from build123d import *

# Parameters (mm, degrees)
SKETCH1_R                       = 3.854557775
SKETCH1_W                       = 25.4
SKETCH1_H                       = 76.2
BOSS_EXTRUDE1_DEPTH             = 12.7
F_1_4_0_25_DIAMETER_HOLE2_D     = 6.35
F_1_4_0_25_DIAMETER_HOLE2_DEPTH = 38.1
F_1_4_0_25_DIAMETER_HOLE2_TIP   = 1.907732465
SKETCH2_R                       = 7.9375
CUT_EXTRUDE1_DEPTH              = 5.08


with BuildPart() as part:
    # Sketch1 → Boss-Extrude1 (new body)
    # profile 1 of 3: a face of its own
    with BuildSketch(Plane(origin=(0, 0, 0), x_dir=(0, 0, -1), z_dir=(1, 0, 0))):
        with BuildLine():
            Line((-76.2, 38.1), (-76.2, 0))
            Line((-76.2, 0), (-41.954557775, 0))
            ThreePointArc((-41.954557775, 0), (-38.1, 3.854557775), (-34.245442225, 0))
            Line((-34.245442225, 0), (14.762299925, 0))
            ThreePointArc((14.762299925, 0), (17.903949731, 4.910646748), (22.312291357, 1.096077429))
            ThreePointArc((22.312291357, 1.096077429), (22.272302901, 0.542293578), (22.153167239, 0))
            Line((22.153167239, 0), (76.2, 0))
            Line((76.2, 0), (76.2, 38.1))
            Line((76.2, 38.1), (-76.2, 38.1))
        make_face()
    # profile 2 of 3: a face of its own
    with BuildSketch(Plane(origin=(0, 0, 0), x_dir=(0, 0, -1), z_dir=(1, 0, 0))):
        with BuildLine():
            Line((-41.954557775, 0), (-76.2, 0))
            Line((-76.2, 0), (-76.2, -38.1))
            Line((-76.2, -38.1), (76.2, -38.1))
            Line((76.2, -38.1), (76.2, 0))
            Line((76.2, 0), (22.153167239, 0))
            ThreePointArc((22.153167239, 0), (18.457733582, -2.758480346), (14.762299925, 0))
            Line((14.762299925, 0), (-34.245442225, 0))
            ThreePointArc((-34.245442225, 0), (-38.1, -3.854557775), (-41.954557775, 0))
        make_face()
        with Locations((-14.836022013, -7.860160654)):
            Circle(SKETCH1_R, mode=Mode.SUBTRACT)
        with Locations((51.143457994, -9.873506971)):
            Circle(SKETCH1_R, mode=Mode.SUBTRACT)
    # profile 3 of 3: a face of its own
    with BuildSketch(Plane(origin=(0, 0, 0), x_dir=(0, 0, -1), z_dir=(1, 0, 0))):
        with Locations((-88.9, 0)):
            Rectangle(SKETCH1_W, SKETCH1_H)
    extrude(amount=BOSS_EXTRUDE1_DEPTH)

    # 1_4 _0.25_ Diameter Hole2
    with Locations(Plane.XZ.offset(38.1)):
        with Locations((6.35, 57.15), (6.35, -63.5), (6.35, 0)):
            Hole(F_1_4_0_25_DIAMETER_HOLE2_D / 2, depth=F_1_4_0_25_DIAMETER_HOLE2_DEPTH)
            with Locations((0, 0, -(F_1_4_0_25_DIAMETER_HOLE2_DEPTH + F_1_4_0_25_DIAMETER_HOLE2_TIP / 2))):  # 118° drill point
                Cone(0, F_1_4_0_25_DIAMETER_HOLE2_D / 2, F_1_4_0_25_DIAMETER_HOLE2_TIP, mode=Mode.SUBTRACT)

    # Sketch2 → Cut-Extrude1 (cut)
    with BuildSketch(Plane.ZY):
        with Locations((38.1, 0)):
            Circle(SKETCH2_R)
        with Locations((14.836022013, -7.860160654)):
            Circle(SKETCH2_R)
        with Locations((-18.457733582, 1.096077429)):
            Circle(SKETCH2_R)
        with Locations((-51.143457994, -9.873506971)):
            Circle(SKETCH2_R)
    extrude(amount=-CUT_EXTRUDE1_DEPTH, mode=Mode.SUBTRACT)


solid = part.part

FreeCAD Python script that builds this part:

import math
import FreeCAD as App
import Part
import Sketcher

V = App.Vector
Q = App.Units.Quantity

doc = App.newDocument("Part")
body = doc.addObject("PartDesign::Body", "Body")

# Sketch on YZ plane
sketch1 = body.newObject("Sketcher::SketchObject", "Sketch")
sketch1.AttachmentSupport = (doc.getObject("YZ_Plane"), [""])
sketch1.MapMode = "FlatFace"
sketch1.addGeometry([
    Part.LineSegment(V(38.1, -76.2, 0), V(38.1, 101.6, 0)),  # 0
    Part.LineSegment(V(38.1, 101.6, 0), V(-38.1, 101.6, 0)),  # 1
    Part.LineSegment(V(-38.1, 101.6, 0), V(-38.1, -76.2, 0)),  # 2
    Part.LineSegment(V(-38.1, -76.2, 0), V(38.1, -76.2, 0)),  # 3
    Part.Circle(V(0, 38.1, 0), V(0, 0, 1), 3.9),  # 4
    Part.ArcOfCircle(Part.Circle(V(1.1, -18.5, 0), V(0, 0, 1), 3.9), math.radians(-90), math.radians(107)),  # 5
    Part.ArcOfCircle(Part.Circle(V(1.1, -18.5, 0), V(0, 0, 1), 3.9), math.radians(-106.52), math.radians(-90)),  # 6
    Part.ArcOfCircle(Part.Circle(V(1.1, -18.5, 0), V(0, 0, 1), 3.9), math.radians(107), math.radians(253)),  # 7
    Part.Circle(V(-7.9, 14.8, 0), V(0, 0, 1), 3.9),  # 8
    Part.Circle(V(-9.9, -51.1, 0), V(0, 0, 1), 3.9),  # 9
], False)
sketch1.addConstraint([
    Sketcher.Constraint("Coincident", 0, 2, 1, 1),
    Sketcher.Constraint("Coincident", 1, 2, 2, 1),
    Sketcher.Constraint("Coincident", 2, 2, 3, 1),
    Sketcher.Constraint("Coincident", 3, 2, 0, 1),
    Sketcher.Constraint("Tangent", 5, 1, 6, 2),
    Sketcher.Constraint("Tangent", 6, 1, 7, 2),
    Sketcher.Constraint("Tangent", 7, 1, 5, 2),
    Sketcher.Constraint("Vertical", 0),
    Sketcher.Constraint("Horizontal", 1),
    Sketcher.Constraint("Vertical", 2),
    Sketcher.Constraint("Horizontal", 3),
    Sketcher.Constraint("Equal", 4, 5),
    Sketcher.Constraint("Equal", 7, 8),
    Sketcher.Constraint("Equal", 8, 9),
    Sketcher.Constraint("PointOnObject", 4, 3, -2),
    Sketcher.Constraint("PointOnObject", 6, 1, -2),
    Sketcher.Constraint("PointOnObject", 7, 1, -2),
    Sketcher.Constraint("Vertical", 7, 3, 5, 1),
    Sketcher.Constraint("DistanceX", 1, 2, 1, 1, Q("3 in")),
    Sketcher.Constraint("DistanceY", 0, 1, 0, 2, Q("7 in")),
    Sketcher.Constraint("DistanceY", -1, 1, 0, 2, Q("4 in")),
    Sketcher.Constraint("DistanceY", -1, 1, 4, 3, Q("1.5 in")),
    Sketcher.Constraint("DistanceX", -1, 1, 0, 2, Q("1.5 in")),
    Sketcher.Constraint("Diameter", 4, 7.709116),
    Sketcher.Constraint("DistanceY", 7, 1, -1, 1, 14.7623),
    Sketcher.Constraint("DistanceX", 8, 3, -1, 1, 7.860161),
    Sketcher.Constraint("DistanceY", 5, 1, -1, 1, 22.312291),
    Sketcher.Constraint("DistanceY", 9, 3, 8, 3, 65.97948),
    Sketcher.Constraint("DistanceY", 9, 3, 6, 1, 28.990291),
    Sketcher.Constraint("DistanceX", 9, 3, -1, 1, 9.873507),
])
pad1 = body.newObject("PartDesign::Pad", "Pad")
pad1.Profile = sketch1
pad1.Length = Q("0.5 in")

# Sketch on XZ plane
sketch2 = body.newObject("Sketcher::SketchObject", "Sketch001")
sketch2.AttachmentSupport = (doc.getObject("XZ_Plane"), [""])
sketch2.MapMode = "FlatFace"
sketch2.AttachmentOffset = App.Placement(V(0, 0, 1.5 * 25.4), App.Rotation())
sketch2.addGeometry([
    Part.Circle(V(6.3, 57.1, 0), V(0, 0, 1), 3.2),
    Part.Circle(V(6.3, -63.5, 0), V(0, 0, 1), 3.2),
    Part.Circle(V(6.3, 0, 0), V(0, 0, 1), 3.2),
], False)
sketch2.addConstraint([
    Sketcher.Constraint("Equal", 0, 1),
    Sketcher.Constraint("Equal", 1, 2),
    Sketcher.Constraint("PointOnObject", 2, 3, -1),
    Sketcher.Constraint("Vertical", 0, 3, 1, 3),
    Sketcher.Constraint("Vertical", 1, 3, 2, 3),
    Sketcher.Constraint("Diameter", 0, Q("0.25 in")),
    Sketcher.Constraint("DistanceY", 1, 3, -1, 1, Q("2.5 in")),
    Sketcher.Constraint("DistanceX", -1, 1, 0, 3, Q("0.25 in")),
    Sketcher.Constraint("DistanceY", -1, 1, 0, 3, Q("2.25 in")),
])
doc.recompute()
hole = body.newObject("PartDesign::Hole", "Hole")
hole.Profile = sketch2
hole.ThreadType = "None"
hole.Diameter = Q("0.25 in")
hole.DepthType = "Dimension"
hole.Depth = Q("1.5 in")
hole.DrillPoint = "Angled"
hole.DrillPointAngle = 118

# Sketch on YZ plane
sketch3 = body.newObject("Sketcher::SketchObject", "Sketch002")
sketch3.AttachmentSupport = (doc.getObject("YZ_Plane"), [""])
sketch3.MapMode = "FlatFace"
sketch3.addGeometry([
    Part.Circle(V(0, 38, 0), V(0, 0, 1), 8),
    Part.Circle(V(-8, 15, 0), V(0, 0, 1), 8),
    Part.Circle(V(1, -18, 0), V(0, 0, 1), 8),
    Part.Circle(V(-10, -51, 0), V(0, 0, 1), 8),
], False)
sketch3.addConstraint([
    Sketcher.Constraint("Equal", 0, 1),
    Sketcher.Constraint("Equal", 1, 2),
    Sketcher.Constraint("Equal", 2, 3),
    Sketcher.Constraint("PointOnObject", 0, 3, -2),
    Sketcher.Constraint("Diameter", 0, Q("0.625 in")),
    Sketcher.Constraint("DistanceY", -1, 1, 0, 3, Q("1.5 in")),
    Sketcher.Constraint("DistanceX", 1, 3, -1, 1, 7.860161),
    Sketcher.Constraint("DistanceX", 1, 3, 2, 3, 8.956238),
    Sketcher.Constraint("DistanceY", 3, 3, 1, 3, 65.97948),
    Sketcher.Constraint("DistanceY", -1, 1, 1, 3, 14.836022),
    Sketcher.Constraint("DistanceY", 2, 3, -1, 1, 18.457734),
    Sketcher.Constraint("DistanceX", 3, 3, -1, 1, 9.873507),
])
pocket1 = body.newObject("PartDesign::Pocket", "Pocket")
pocket1.Profile = sketch3
pocket1.Length = Q("0.2 in")
pocket1.Reversed = True

doc.recompute()
